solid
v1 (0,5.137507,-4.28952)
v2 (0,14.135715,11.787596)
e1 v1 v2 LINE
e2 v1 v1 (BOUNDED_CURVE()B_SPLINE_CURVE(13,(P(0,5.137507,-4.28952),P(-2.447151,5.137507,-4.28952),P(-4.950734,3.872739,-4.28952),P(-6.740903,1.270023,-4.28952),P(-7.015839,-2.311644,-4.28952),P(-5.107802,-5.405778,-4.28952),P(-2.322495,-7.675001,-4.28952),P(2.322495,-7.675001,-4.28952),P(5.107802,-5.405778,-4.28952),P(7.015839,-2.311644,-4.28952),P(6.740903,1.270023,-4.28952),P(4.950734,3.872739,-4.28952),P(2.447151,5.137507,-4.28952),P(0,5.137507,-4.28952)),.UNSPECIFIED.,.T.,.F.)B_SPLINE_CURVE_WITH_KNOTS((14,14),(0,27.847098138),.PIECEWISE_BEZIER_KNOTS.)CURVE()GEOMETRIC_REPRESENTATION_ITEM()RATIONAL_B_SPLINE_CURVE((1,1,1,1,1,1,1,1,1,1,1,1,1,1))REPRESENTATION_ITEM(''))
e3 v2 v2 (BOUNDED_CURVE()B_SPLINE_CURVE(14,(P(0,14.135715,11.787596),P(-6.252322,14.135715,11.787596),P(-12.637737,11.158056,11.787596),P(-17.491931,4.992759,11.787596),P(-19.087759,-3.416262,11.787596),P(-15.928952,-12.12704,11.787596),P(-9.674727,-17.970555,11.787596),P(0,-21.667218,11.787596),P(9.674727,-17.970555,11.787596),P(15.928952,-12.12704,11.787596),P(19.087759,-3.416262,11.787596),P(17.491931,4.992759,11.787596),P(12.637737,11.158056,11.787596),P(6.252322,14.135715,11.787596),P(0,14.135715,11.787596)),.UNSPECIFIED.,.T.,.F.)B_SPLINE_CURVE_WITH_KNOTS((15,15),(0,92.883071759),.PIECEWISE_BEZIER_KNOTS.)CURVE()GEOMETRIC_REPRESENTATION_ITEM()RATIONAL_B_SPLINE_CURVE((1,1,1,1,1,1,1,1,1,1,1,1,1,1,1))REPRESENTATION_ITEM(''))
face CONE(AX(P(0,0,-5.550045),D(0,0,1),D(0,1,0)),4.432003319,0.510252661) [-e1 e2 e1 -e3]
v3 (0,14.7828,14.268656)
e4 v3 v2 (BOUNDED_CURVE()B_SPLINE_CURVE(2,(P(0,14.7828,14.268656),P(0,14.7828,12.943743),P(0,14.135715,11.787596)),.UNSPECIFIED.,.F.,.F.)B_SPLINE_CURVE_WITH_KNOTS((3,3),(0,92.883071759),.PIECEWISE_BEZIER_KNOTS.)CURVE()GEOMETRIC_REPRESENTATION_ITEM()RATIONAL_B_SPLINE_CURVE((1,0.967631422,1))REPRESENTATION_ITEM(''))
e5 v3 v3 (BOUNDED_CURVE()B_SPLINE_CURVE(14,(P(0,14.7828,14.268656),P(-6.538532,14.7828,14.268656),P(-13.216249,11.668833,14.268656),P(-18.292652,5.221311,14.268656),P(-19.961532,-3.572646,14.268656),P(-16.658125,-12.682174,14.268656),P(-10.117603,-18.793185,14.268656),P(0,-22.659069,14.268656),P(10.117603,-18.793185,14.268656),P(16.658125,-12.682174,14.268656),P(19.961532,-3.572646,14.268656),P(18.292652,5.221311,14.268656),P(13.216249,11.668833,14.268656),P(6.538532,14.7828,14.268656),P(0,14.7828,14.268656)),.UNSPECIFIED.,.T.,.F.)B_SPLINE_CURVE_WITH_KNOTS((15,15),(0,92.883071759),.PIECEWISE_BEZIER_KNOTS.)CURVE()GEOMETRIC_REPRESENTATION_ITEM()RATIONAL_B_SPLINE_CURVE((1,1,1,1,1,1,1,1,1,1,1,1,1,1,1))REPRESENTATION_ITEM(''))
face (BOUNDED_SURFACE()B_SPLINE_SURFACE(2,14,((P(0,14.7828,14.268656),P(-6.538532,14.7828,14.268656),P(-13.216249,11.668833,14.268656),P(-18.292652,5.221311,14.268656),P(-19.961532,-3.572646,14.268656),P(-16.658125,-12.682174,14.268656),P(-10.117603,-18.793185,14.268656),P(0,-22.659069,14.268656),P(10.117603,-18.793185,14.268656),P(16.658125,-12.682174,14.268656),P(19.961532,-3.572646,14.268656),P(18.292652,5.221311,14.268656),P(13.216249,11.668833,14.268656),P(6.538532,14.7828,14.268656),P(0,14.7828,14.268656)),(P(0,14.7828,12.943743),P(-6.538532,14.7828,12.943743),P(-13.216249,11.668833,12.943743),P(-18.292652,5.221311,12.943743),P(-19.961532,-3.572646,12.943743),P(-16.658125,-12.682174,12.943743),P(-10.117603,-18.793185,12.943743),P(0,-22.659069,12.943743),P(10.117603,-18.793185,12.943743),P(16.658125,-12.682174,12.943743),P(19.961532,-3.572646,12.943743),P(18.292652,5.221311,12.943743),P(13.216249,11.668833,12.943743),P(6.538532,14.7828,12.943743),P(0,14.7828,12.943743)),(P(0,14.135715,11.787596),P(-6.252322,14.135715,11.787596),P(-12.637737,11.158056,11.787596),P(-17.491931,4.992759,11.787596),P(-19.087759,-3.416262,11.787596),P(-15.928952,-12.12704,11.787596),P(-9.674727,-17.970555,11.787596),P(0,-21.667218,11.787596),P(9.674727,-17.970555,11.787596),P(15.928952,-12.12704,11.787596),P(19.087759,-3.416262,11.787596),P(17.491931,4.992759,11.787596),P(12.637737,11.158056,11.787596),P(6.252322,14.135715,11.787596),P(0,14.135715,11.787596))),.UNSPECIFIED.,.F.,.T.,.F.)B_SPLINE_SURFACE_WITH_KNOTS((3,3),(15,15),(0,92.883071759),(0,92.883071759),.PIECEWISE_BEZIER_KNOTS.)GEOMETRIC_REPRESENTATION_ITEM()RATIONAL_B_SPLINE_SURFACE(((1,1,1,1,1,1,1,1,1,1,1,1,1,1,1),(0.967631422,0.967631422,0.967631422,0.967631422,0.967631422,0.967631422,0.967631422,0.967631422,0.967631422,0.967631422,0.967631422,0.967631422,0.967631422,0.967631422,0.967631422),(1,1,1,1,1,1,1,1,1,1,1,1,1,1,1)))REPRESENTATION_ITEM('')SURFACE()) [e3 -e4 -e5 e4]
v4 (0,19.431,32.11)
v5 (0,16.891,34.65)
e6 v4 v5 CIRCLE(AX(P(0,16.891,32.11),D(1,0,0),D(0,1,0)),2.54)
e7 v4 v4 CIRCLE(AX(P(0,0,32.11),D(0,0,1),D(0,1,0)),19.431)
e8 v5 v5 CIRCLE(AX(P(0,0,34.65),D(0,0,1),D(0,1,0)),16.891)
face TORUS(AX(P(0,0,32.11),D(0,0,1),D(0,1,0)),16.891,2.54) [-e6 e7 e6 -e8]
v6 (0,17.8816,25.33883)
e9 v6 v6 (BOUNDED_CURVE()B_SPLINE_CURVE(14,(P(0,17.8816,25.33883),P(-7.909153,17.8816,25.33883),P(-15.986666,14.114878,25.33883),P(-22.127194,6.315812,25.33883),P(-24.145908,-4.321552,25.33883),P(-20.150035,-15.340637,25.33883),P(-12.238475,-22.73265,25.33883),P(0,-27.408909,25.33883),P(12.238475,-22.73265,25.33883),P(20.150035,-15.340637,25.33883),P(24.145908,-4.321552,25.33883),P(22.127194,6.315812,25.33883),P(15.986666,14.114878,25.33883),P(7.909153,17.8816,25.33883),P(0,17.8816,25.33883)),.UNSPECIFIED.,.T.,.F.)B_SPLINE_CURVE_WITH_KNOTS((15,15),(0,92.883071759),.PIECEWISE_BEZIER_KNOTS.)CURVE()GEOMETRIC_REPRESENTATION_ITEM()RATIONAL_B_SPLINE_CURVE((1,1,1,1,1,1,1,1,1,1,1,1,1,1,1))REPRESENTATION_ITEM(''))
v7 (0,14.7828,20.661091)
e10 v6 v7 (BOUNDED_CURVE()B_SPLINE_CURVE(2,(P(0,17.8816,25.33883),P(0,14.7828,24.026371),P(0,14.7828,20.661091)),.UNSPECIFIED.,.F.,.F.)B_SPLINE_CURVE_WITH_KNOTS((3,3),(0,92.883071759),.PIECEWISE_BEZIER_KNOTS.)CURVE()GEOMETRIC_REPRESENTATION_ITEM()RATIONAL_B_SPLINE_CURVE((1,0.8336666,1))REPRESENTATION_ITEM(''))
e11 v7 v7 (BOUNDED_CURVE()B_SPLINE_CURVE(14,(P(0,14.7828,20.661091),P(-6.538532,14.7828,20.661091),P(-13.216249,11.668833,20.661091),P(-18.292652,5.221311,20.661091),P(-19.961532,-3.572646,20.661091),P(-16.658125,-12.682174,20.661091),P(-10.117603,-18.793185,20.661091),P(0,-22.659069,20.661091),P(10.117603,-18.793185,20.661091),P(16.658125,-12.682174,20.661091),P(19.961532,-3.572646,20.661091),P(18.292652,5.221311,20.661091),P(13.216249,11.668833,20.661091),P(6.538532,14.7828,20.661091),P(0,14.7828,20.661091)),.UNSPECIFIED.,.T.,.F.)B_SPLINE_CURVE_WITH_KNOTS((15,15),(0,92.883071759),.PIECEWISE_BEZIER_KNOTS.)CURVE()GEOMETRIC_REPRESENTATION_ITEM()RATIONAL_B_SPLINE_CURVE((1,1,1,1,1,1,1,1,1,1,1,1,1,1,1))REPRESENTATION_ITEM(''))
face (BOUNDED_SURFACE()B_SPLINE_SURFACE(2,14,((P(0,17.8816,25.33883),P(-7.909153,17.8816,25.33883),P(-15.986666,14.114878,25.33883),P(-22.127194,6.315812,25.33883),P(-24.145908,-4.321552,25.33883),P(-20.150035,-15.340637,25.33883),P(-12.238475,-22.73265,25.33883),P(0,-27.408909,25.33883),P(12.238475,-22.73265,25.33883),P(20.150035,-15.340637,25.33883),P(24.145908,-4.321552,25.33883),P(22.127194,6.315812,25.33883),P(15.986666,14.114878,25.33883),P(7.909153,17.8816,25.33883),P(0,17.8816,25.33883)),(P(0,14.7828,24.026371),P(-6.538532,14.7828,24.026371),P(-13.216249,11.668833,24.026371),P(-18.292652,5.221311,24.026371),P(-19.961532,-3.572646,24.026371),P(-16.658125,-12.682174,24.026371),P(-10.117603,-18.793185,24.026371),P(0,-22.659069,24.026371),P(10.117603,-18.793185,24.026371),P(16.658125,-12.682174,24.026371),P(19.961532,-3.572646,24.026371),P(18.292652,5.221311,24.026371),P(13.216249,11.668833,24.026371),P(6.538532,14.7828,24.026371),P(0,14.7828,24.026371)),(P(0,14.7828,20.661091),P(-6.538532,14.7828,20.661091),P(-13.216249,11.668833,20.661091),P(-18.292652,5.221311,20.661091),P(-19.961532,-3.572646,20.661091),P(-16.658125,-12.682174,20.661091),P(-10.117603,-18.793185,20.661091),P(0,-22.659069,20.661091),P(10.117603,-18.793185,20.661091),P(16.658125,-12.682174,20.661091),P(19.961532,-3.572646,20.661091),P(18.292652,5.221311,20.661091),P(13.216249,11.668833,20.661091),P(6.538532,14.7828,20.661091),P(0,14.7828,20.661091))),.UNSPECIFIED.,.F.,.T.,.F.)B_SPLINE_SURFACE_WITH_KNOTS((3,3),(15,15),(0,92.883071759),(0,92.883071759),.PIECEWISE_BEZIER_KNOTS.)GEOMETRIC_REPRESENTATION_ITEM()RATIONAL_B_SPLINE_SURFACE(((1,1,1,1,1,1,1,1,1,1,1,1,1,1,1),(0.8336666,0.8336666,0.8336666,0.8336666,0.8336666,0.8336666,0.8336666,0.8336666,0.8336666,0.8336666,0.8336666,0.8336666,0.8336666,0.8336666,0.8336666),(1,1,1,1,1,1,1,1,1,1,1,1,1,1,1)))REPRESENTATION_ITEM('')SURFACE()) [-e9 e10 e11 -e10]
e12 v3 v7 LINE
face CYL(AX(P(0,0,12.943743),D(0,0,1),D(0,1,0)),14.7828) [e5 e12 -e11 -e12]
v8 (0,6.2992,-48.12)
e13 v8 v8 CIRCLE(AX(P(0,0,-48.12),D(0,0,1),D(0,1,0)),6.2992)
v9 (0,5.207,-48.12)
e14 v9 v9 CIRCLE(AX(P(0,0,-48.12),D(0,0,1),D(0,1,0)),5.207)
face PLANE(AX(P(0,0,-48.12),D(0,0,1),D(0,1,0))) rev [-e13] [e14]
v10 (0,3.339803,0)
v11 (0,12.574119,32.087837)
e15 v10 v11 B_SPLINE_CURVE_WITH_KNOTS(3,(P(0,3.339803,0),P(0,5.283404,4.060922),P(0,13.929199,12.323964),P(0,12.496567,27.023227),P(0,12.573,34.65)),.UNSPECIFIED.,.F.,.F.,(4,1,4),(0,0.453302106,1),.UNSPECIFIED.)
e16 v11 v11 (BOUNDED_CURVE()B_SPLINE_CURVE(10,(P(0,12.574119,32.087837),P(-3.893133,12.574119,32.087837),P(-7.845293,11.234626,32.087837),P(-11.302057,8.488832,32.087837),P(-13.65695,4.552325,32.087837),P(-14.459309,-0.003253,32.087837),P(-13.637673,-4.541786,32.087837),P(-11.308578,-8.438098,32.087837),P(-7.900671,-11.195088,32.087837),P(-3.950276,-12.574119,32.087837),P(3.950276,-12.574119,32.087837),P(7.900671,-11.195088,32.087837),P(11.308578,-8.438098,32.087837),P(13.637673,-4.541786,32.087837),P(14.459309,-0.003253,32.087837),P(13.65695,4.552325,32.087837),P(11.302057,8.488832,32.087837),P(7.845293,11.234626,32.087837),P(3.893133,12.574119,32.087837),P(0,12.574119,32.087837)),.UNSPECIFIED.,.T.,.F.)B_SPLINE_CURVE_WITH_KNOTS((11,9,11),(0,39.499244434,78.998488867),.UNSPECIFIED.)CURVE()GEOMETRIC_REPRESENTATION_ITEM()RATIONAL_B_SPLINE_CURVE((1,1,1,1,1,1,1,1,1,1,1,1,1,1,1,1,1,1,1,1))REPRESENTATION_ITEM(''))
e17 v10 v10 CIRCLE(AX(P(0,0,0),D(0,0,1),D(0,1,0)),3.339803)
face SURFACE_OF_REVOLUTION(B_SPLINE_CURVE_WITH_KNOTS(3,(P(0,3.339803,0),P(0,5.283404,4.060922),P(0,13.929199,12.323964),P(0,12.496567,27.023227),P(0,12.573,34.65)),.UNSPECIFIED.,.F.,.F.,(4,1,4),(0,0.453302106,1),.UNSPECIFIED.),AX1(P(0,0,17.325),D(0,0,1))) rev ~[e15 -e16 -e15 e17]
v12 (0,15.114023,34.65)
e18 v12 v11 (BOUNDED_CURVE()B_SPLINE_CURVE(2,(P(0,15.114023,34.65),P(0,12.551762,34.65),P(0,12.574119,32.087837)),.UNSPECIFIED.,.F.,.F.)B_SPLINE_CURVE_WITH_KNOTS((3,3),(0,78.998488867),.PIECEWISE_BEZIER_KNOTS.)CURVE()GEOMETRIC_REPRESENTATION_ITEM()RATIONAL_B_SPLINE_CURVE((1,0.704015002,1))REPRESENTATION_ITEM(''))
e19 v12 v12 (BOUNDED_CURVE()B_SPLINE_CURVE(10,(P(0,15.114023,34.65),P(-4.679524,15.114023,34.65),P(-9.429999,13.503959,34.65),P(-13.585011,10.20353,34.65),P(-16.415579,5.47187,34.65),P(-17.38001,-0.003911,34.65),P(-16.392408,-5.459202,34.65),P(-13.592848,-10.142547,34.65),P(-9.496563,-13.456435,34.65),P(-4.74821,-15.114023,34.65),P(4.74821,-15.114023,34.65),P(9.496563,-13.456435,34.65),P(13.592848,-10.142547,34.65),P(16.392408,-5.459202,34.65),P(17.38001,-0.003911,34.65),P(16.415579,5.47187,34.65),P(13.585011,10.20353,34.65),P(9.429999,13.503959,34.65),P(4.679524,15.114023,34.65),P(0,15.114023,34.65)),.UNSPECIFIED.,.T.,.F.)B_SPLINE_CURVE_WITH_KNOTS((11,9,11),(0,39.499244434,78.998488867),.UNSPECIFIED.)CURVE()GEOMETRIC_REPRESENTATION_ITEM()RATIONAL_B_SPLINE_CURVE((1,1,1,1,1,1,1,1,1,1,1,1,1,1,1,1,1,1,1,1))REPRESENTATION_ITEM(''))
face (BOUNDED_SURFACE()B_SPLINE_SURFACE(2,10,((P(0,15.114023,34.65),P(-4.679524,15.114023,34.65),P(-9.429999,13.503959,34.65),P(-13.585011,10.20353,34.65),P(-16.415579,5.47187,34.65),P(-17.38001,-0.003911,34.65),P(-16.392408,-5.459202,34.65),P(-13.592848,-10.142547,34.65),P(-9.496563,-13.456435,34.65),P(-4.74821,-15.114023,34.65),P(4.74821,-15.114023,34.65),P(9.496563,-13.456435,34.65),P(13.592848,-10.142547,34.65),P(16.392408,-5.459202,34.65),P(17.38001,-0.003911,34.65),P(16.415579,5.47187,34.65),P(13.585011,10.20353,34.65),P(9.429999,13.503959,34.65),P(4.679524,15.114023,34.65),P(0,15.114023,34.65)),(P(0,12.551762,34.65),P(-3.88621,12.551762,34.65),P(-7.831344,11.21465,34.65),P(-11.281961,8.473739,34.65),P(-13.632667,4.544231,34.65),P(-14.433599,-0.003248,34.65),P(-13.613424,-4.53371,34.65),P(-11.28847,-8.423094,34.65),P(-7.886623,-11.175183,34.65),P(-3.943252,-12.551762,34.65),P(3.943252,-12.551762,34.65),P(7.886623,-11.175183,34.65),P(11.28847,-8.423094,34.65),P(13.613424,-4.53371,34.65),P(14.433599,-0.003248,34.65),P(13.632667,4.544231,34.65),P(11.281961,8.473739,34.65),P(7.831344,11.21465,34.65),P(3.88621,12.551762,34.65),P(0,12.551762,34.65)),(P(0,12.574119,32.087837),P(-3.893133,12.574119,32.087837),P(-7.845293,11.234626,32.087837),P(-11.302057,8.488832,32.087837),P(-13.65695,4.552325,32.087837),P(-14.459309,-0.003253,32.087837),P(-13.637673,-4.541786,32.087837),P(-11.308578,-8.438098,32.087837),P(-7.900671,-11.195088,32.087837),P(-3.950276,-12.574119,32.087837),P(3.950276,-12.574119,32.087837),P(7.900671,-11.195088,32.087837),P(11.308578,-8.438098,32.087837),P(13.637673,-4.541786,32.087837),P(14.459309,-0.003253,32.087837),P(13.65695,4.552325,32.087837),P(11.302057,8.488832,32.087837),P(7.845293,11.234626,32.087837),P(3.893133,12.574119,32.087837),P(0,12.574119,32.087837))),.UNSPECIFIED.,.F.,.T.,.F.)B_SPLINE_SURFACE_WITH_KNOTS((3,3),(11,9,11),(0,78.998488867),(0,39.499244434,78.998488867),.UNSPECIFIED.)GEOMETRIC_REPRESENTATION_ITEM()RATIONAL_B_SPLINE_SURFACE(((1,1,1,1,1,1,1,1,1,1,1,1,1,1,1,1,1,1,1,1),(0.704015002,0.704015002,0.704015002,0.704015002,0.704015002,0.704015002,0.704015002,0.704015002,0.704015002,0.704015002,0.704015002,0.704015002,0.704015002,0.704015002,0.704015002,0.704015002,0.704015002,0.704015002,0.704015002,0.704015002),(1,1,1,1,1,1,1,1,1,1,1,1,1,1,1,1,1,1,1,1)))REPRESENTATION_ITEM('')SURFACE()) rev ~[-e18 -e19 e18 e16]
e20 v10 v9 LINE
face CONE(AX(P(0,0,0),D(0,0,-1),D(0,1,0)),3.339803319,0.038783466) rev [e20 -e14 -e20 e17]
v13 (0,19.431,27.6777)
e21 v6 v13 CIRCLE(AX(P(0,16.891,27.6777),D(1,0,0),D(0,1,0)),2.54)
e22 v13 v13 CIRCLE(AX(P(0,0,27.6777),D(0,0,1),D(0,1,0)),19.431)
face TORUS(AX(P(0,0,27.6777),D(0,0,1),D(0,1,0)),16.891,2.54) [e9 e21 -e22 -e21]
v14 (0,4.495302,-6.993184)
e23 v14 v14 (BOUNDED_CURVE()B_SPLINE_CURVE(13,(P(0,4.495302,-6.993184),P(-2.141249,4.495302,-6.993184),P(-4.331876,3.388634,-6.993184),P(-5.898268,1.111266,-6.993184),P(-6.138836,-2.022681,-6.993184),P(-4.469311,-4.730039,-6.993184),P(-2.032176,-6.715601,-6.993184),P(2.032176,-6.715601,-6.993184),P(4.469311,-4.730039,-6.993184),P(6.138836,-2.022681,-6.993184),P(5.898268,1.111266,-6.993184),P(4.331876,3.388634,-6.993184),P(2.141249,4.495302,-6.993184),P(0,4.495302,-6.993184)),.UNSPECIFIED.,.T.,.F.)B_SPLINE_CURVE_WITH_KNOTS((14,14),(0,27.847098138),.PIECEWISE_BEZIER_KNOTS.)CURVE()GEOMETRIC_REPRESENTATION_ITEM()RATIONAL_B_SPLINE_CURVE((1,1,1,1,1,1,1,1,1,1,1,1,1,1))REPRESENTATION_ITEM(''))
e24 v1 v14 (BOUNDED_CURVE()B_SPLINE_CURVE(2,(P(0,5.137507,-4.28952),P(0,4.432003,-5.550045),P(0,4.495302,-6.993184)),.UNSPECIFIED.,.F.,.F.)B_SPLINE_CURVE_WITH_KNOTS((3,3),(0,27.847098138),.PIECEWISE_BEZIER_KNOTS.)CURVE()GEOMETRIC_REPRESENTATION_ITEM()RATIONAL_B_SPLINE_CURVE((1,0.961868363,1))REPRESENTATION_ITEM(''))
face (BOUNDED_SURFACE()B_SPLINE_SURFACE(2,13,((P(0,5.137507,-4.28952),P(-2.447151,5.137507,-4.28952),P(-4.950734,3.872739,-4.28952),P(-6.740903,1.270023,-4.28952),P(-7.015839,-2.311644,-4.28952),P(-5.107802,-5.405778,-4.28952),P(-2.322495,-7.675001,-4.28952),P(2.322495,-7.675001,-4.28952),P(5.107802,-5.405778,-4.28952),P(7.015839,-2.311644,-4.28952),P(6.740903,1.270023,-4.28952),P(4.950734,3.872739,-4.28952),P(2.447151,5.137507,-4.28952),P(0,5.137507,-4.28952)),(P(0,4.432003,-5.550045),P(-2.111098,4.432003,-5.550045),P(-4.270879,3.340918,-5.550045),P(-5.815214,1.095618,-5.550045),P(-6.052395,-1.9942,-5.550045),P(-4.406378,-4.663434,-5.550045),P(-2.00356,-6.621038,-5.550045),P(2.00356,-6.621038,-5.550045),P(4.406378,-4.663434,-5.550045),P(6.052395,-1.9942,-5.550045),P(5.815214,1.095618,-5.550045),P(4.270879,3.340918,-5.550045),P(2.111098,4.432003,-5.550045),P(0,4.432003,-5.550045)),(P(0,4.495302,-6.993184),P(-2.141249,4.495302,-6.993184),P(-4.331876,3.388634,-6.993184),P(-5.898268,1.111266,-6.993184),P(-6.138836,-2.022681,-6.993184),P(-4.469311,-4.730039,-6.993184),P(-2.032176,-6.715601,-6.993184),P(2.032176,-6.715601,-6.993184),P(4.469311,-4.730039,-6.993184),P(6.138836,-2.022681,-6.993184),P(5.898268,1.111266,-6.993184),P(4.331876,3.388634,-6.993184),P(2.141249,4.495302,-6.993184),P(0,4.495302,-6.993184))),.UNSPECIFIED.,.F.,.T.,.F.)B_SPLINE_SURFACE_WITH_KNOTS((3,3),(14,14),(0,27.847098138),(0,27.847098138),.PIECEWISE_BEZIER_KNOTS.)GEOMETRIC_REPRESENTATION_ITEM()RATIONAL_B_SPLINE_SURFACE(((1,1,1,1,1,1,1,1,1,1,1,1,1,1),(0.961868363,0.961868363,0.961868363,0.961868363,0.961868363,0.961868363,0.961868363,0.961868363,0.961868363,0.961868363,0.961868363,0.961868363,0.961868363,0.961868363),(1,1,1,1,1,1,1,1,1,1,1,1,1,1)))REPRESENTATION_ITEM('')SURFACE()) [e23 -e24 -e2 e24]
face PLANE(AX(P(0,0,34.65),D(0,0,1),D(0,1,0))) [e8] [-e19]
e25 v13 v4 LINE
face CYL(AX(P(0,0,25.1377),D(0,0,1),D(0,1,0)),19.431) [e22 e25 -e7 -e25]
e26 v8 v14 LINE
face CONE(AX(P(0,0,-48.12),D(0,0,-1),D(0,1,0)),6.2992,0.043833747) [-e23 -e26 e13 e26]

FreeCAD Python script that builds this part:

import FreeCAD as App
import Part
import Sketcher
Q = App.Units.Quantity


def edges_at(feature, points):
    """Names of the edges that pass closest to the given points."""
    edges = feature.Shape.Edges
    near = lambda p: min(range(len(edges)), key=lambda i: edges[i].distToShape(Part.Vertex(*p))[0])
    return sorted({f"Edge{near(p) + 1}" for p in points})

doc = App.newDocument("Part")
body = doc.addObject("PartDesign::Body", "Body")

# Sketch on YZ plane
sketch1 = body.newObject("Sketcher::SketchObject", "Sketch")
sketch1.AttachmentSupport = (doc.getObject("YZ_Plane"), [""])
sketch1.MapMode = "FlatFace"
sketch1.addGeometry([
    Part.LineSegment(App.Vector(6.2992, -48.12, 0), App.Vector(4.432003, -5.550045, 0)),  # 0
    Part.LineSegment(App.Vector(4.432003, -5.550045, 0), App.Vector(14.7828, 12.943743, 0)),  # 1
    Part.LineSegment(App.Vector(14.7828, 12.943743, 0), App.Vector(14.7828, 25.1377, 0)),  # 2
    Part.LineSegment(App.Vector(14.7828, 25.1377, 0), App.Vector(19.431, 25.1377, 0)),  # 3
    Part.LineSegment(App.Vector(19.431, 25.1377, 0), App.Vector(19.431, 34.65, 0)),  # 4
    Part.LineSegment(App.Vector(19.431, 34.65, 0), App.Vector(12.573, 34.65, 0)),  # 5
    Part.BSplineCurve([App.Vector(3.339803, 0, 0), App.Vector(5.283404, 4.060922, 0), App.Vector(13.929199, 12.323964, 0), App.Vector(12.496567, 27.023227, 0), App.Vector(12.573, 34.65, 0)], [4, 1, 4], [0, 0.453302106, 1], False, 3, [1, 1, 1, 1, 1], False),  # 6
    Part.LineSegment(App.Vector(3.339803, 0, 0), App.Vector(5.207, -48.12, 0)),  # 7
    Part.LineSegment(App.Vector(5.207, -48.12, 0), App.Vector(6.2992, -48.12, 0)),  # 8
], False)
sketch1.addConstraint([
    Sketcher.Constraint("Block", 6),
    Sketcher.Constraint("Coincident", 0, 2, 1, 1),
    Sketcher.Constraint("Coincident", 1, 2, 2, 1),
    Sketcher.Constraint("Coincident", 2, 2, 3, 1),
    Sketcher.Constraint("Coincident", 3, 2, 4, 1),
    Sketcher.Constraint("Coincident", 4, 2, 5, 1),
    Sketcher.Constraint("Coincident", 5, 2, 6, 2),
    Sketcher.Constraint("Coincident", 6, 1, 7, 1),
    Sketcher.Constraint("Coincident", 7, 2, 8, 1),
    Sketcher.Constraint("Coincident", 8, 2, 0, 1),
    Sketcher.Constraint("Vertical", 2),
    Sketcher.Constraint("Horizontal", 3),
    Sketcher.Constraint("Vertical", 4),
    Sketcher.Constraint("Horizontal", 5),
    Sketcher.Constraint("Horizontal", 8),
    Sketcher.Constraint("DistanceX", 5, 2, 5, 1, Q("0.27 in")),
    Sketcher.Constraint("DistanceX", 3, 1, 3, 2, Q("0.183 in")),
    Sketcher.Constraint("DistanceX", 8, 1, 8, 2, Q("0.043 in")),
    Sketcher.Constraint("DistanceX", 7, 2, 3, 2, Q("0.56 in")),
    Sketcher.Constraint("DistanceY", 4, 1, 4, 2, Q("0.3745 in")),
    Sketcher.Constraint("DistanceY", 7, 2, -1, 1, Q("48.12 mm")),
    Sketcher.Constraint("DistanceY", 2, 1, 2, 2, Q("12.193957 mm")),
    Sketcher.Constraint("Distance", 0, Q("42.610885 mm")),
    Sketcher.Constraint("Distance", 1, Q("21.193375 mm")),
])
revolution = body.newObject("PartDesign::Revolution", "Revolution")
revolution.Profile = sketch1
revolution.ReferenceAxis = (sketch1, ["V_Axis"])
revolution.Angle = 360
doc.recompute()

fillet = body.newObject("PartDesign::Fillet", "Fillet")
fillet.Base = (revolution, edges_at(revolution, [(0, -19.431, 34.65), (0, -12.573, 34.65), (0, -19.431, 25.138)]))
fillet.Radius = Q("0.1 in")
doc.recompute()

fillet2 = body.newObject("PartDesign::Fillet", "Fillet001")
fillet2.Base = (fillet, edges_at(fillet, [
    (0, -14.783, 25.138),
    (0, -14.783, 12.944),
    (0, -4.432, -5.55),
    (0, 9.607, 3.697),
]))
fillet2.Radius = Q("0.2 in")

doc.recompute()
